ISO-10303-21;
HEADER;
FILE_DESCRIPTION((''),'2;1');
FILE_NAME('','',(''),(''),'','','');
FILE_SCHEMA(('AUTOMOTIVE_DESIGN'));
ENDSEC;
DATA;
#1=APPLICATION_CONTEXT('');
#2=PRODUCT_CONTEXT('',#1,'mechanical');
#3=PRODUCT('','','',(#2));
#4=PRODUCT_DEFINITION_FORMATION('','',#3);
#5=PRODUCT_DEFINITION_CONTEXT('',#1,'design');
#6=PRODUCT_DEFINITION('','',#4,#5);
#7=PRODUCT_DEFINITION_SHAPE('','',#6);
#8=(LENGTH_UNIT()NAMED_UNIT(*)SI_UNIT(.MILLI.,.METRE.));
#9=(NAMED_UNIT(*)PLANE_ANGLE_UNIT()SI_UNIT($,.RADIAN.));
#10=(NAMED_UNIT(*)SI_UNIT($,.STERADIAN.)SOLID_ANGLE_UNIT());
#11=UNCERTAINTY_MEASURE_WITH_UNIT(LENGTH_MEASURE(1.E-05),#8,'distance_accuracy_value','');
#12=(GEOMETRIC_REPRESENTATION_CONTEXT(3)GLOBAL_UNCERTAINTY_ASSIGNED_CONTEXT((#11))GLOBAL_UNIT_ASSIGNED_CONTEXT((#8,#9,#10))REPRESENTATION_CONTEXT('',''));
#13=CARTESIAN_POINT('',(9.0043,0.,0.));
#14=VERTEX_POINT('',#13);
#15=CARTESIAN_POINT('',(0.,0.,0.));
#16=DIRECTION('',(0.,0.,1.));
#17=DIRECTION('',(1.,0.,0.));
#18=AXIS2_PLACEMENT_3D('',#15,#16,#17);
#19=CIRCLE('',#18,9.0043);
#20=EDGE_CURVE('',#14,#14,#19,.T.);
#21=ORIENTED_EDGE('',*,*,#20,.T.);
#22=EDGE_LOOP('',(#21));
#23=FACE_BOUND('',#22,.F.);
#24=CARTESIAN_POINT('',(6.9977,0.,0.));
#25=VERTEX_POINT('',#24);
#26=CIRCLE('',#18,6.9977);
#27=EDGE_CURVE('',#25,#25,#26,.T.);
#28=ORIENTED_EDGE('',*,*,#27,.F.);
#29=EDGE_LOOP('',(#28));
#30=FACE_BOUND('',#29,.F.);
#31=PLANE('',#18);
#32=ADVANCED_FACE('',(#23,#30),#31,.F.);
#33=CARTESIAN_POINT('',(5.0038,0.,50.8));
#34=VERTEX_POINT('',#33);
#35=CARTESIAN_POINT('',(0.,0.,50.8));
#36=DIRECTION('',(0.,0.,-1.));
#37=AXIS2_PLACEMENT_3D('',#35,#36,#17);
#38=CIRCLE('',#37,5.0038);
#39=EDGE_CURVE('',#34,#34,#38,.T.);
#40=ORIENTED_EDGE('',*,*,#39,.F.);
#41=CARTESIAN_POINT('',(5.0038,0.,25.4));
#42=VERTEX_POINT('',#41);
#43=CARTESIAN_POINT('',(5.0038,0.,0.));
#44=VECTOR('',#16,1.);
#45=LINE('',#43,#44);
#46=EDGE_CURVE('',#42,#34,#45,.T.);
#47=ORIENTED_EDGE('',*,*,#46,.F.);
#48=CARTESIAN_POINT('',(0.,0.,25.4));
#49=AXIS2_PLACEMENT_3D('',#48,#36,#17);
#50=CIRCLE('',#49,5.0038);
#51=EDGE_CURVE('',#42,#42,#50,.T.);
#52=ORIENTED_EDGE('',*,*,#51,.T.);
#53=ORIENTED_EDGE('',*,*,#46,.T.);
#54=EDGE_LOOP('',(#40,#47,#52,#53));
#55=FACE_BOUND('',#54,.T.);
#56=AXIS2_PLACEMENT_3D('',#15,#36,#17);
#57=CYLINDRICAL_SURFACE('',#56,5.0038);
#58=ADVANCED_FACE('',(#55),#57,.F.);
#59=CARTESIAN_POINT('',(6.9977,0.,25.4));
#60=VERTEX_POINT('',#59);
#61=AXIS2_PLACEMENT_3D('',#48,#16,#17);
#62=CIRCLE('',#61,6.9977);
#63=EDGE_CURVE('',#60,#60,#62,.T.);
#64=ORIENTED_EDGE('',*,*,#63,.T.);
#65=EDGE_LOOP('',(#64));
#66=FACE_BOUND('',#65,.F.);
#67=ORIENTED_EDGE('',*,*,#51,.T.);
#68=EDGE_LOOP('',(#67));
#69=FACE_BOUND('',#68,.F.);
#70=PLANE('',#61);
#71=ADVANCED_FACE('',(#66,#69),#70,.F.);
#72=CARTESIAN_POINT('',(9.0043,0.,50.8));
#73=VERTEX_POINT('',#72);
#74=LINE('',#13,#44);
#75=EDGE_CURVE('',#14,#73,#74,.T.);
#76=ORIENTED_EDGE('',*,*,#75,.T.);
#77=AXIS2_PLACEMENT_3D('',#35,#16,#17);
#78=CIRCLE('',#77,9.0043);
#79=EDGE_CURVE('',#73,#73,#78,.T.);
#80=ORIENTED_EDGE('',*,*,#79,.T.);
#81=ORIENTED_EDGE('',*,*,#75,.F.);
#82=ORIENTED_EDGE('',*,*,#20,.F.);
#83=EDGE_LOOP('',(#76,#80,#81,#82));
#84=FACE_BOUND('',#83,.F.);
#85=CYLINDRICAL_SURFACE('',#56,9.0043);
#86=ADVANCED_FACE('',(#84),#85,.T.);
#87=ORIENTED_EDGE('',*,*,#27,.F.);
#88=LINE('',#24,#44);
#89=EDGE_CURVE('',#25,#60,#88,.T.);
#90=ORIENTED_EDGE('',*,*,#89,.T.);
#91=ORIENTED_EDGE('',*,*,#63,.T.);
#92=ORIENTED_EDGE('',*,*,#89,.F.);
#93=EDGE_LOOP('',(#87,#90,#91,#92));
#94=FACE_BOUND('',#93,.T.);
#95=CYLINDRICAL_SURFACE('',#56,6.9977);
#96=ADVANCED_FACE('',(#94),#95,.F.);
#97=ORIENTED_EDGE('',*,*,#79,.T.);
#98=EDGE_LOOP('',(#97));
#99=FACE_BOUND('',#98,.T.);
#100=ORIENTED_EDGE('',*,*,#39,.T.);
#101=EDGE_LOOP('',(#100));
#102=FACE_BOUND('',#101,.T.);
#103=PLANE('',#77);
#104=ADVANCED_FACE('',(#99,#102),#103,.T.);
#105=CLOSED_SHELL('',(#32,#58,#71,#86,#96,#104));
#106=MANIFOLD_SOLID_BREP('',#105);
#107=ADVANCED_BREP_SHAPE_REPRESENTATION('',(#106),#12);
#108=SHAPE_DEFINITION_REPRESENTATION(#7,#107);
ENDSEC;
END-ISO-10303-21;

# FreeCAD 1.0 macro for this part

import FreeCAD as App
import Part
import Sketcher
Q = App.Units.Quantity

doc = App.newDocument("Part")
body = doc.addObject("PartDesign::Body", "Body")

sketch1 = body.newObject("Sketcher::SketchObject", "Sketch")
sketch1.AttachmentSupport = (doc.getObject("XY_Plane"), [""])
sketch1.MapMode = "FlatFace"
sketch1.addGeometry(Part.Circle(App.Vector(0, 0, 0), App.Vector(0, 0, 1), 9), False)
sketch1.addConstraint([
    Sketcher.Constraint("Coincident", 0, 3, -1, 1),
    Sketcher.Constraint("Diameter", 0, Q("0.709 in")),
])
pad1 = body.newObject("PartDesign::Pad", "Pad")
pad1.Profile = sketch1
pad1.Length = Q("2 in")

sketch2 = body.newObject("Sketcher::SketchObject", "Sketch001")
sketch2.AttachmentSupport = (doc.getObject("XY_Plane"), [""])
sketch2.MapMode = "FlatFace"
sketch2.addGeometry(Part.Circle(App.Vector(0, 0, 0), App.Vector(0, 0, 1), 5), False)
sketch2.addConstraint([
    Sketcher.Constraint("Coincident", 0, 3, -1, 1),
    Sketcher.Constraint("Diameter", 0, Q("0.394 in")),
])
pocket1 = body.newObject("PartDesign::Pocket", "Pocket")
pocket1.Profile = sketch2
pocket1.Type = "ThroughAll"
pocket1.Midplane = True

sketch3 = body.newObject("Sketcher::SketchObject", "Sketch002")
sketch3.AttachmentSupport = (doc.getObject("XY_Plane"), [""])
sketch3.MapMode = "FlatFace"
sketch3.addGeometry(Part.Circle(App.Vector(0, 0, 0), App.Vector(0, 0, 1), 7), False)
sketch3.addConstraint([
    Sketcher.Constraint("Coincident", 0, 3, -1, 1),
    Sketcher.Constraint("Diameter", 0, Q("0.551 in")),
])
pocket2 = body.newObject("PartDesign::Pocket", "Pocket001")
pocket2.Profile = sketch3
pocket2.Length = Q("1 in")
pocket2.Reversed = True

doc.recompute()
